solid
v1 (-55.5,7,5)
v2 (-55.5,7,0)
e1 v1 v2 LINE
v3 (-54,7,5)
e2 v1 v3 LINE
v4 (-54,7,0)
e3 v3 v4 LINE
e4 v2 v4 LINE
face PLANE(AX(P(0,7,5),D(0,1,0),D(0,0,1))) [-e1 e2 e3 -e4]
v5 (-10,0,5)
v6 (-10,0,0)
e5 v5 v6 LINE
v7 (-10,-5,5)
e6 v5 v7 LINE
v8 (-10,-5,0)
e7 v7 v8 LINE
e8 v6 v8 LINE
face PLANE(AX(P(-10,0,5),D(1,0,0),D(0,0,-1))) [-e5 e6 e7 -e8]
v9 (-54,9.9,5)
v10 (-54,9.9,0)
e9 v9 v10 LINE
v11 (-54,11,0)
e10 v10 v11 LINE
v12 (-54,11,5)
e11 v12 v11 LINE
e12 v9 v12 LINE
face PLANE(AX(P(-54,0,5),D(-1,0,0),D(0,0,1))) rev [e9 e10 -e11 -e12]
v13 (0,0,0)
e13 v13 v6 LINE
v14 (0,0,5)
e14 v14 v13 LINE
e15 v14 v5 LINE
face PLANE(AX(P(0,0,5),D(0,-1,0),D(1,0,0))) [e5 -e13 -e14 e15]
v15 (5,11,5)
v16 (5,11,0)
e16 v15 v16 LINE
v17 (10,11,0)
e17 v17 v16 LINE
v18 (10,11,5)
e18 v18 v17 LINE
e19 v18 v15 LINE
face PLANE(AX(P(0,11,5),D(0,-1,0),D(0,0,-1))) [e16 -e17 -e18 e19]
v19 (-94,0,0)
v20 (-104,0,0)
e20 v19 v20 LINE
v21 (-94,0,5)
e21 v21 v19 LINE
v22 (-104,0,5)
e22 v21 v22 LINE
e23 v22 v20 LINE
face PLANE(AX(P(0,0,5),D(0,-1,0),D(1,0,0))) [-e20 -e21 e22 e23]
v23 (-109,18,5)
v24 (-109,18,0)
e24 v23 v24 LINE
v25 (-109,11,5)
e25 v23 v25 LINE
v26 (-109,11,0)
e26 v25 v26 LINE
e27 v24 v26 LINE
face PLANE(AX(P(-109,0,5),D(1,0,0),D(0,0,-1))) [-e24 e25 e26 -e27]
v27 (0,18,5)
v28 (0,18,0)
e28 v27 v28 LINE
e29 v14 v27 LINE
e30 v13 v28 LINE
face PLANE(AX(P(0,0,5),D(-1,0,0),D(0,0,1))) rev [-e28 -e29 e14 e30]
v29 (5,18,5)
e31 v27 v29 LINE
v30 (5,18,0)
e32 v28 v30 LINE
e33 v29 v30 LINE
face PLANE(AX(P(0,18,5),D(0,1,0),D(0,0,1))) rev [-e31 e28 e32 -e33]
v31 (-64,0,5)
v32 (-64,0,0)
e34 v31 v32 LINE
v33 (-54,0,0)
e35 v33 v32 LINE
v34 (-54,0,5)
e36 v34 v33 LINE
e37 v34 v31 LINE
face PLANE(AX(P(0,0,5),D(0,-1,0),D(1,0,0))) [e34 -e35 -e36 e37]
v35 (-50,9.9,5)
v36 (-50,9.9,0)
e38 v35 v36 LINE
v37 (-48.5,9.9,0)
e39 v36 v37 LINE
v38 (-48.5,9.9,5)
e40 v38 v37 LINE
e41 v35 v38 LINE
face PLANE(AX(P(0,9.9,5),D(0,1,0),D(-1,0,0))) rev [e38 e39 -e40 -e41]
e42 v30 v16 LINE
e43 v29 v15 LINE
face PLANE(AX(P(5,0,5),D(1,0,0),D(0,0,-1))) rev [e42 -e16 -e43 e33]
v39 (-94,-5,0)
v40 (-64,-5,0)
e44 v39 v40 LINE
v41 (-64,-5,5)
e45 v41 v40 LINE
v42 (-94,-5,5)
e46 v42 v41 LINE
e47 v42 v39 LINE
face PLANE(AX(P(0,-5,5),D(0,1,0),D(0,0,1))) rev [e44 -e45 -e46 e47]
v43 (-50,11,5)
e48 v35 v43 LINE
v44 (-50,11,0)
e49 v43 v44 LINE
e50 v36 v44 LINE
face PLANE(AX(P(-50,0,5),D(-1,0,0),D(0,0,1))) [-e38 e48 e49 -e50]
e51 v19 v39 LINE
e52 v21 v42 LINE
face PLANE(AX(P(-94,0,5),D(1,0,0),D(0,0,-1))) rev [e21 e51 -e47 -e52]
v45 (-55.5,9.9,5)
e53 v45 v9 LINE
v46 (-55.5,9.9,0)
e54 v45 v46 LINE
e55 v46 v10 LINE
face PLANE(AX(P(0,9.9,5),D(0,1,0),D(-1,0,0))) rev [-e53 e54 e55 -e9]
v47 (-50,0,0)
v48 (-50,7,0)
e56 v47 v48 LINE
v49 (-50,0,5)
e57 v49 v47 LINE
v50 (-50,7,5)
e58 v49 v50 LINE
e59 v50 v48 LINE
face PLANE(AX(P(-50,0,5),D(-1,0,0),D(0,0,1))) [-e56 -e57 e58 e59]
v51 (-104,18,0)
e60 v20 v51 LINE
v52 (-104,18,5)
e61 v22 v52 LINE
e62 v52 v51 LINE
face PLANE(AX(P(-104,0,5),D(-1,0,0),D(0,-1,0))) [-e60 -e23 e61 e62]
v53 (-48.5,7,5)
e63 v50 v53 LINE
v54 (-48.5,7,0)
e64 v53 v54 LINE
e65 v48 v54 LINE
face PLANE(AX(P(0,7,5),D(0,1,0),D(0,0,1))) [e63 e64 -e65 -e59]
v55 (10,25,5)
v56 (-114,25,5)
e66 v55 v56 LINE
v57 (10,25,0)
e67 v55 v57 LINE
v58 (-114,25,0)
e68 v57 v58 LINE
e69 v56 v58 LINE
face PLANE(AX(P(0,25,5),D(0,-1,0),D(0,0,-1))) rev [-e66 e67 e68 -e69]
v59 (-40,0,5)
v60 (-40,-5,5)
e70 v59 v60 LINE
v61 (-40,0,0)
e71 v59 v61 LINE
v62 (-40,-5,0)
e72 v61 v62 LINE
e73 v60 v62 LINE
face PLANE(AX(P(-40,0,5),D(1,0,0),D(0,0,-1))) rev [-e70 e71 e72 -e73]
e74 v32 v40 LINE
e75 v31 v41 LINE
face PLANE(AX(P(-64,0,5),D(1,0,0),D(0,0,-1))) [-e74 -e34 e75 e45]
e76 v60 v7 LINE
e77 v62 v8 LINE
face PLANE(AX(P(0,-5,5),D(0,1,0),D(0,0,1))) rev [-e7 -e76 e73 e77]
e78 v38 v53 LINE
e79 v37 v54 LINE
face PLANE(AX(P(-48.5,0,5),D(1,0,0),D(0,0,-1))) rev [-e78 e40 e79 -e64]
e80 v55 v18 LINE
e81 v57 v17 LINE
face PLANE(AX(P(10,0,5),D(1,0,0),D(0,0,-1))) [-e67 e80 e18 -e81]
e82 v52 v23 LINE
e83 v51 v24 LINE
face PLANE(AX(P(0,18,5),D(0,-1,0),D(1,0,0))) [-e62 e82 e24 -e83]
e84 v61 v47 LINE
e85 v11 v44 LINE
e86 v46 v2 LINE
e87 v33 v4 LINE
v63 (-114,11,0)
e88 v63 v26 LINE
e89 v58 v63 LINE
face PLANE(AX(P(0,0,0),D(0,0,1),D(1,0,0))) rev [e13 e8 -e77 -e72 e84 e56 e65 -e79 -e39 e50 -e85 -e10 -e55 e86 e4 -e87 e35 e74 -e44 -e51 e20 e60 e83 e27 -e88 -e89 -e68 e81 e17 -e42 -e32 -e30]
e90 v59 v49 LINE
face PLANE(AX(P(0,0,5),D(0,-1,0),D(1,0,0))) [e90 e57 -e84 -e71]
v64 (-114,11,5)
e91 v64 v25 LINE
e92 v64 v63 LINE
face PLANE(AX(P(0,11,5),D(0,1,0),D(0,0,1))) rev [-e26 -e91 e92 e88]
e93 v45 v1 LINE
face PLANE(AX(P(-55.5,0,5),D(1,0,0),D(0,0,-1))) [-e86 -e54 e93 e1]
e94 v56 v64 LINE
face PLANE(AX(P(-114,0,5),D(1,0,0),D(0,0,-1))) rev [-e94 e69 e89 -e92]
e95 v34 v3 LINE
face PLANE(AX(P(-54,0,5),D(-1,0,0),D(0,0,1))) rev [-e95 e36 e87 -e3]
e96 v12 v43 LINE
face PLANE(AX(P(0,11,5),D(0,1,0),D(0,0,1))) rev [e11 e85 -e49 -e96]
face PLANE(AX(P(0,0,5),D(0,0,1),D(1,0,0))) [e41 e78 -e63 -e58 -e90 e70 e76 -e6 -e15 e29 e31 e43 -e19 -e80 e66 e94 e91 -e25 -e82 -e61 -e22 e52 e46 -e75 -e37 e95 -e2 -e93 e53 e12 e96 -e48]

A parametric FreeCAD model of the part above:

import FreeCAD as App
import Part
import Sketcher
Q = App.Units.Quantity


def add_polygon(sketch, points):
    """Adds a closed chain of lines whose ends are joined by coincident constraints."""
    first, n = sketch.GeometryCount, len(points)
    for a, b in zip(points, points[1:] + points[:1]):
        sketch.addGeometry(Part.LineSegment(App.Vector(*a, 0), App.Vector(*b, 0)), False)
    for i in range(n):
        sketch.addConstraint(Sketcher.Constraint("Coincident", first + i, 2, first + (i + 1) % n, 1))

doc = App.newDocument("Part")
body = doc.addObject("PartDesign::Body", "Body")

sketch1 = body.newObject("Sketcher::SketchObject", "Sketch")
sketch1.AttachmentSupport = (doc.getObject("XY_Plane"), [""])
sketch1.MapMode = "FlatFace"
add_polygon(sketch1, [(-109, 18), (-104, 18), (-104, 0), (-94, 0), (-94, -5), (-64, -5), (-64, 0), (-54, 0), (-54, 7), (-55.5, 7), (-55.5, 9.9), (-54, 9.9), (-54, 11), (-50, 11), (-50, 9.9), (-48.5, 9.9), (-48.5, 7), (-50, 7), (-50, 0), (-40, 0), (-40, -5), (-10, -5), (-10, 0), (0, 0), (0, 18), (5, 18), (5, 11), (10, 11), (10, 25), (-114, 25), (-114, 11), (-109, 11)])
sketch1.addConstraint(Sketcher.Constraint("Horizontal", 0))
sketch1.addConstraint(Sketcher.Constraint("Vertical", 1))
sketch1.addConstraint(Sketcher.Constraint("Horizontal", 2))
sketch1.addConstraint(Sketcher.Constraint("Vertical", 3))
sketch1.addConstraint(Sketcher.Constraint("Horizontal", 4))
sketch1.addConstraint(Sketcher.Constraint("Vertical", 5))
sketch1.addConstraint(Sketcher.Constraint("Horizontal", 6))
sketch1.addConstraint(Sketcher.Constraint("Vertical", 7))
sketch1.addConstraint(Sketcher.Constraint("Horizontal", 8))
sketch1.addConstraint(Sketcher.Constraint("Vertical", 9))
sketch1.addConstraint(Sketcher.Constraint("Horizontal", 10))
sketch1.addConstraint(Sketcher.Constraint("Vertical", 11))
sketch1.addConstraint(Sketcher.Constraint("Horizontal", 12))
sketch1.addConstraint(Sketcher.Constraint("Vertical", 13))
sketch1.addConstraint(Sketcher.Constraint("Horizontal", 14))
sketch1.addConstraint(Sketcher.Constraint("Vertical", 15))
sketch1.addConstraint(Sketcher.Constraint("Horizontal", 16))
sketch1.addConstraint(Sketcher.Constraint("Vertical", 17))
sketch1.addConstraint(Sketcher.Constraint("Horizontal", 18))
sketch1.addConstraint(Sketcher.Constraint("Vertical", 19))
sketch1.addConstraint(Sketcher.Constraint("Horizontal", 20))
sketch1.addConstraint(Sketcher.Constraint("Vertical", 21))
sketch1.addConstraint(Sketcher.Constraint("Horizontal", 22))
sketch1.addConstraint(Sketcher.Constraint("Vertical", 23))
sketch1.addConstraint(Sketcher.Constraint("Horizontal", 24))
sketch1.addConstraint(Sketcher.Constraint("Vertical", 25))
sketch1.addConstraint(Sketcher.Constraint("Horizontal", 26))
sketch1.addConstraint(Sketcher.Constraint("Vertical", 27))
sketch1.addConstraint(Sketcher.Constraint("Horizontal", 28))
sketch1.addConstraint(Sketcher.Constraint("Vertical", 29))
sketch1.addConstraint(Sketcher.Constraint("Horizontal", 30))
sketch1.addConstraint(Sketcher.Constraint("Vertical", 31))
sketch1.addConstraint(Sketcher.Constraint("Coincident", 22, 2, -1, 1))
sketch1.addConstraint(Sketcher.Constraint("PointOnObject", 1, 2, -1))
sketch1.addConstraint(Sketcher.Constraint("PointOnObject", 5, 2, -1))
sketch1.addConstraint(Sketcher.Constraint("PointOnObject", 17, 2, -1))
sketch1.addConstraint(Sketcher.Constraint("Horizontal", 10, 2, 13, 2))
sketch1.addConstraint(Sketcher.Constraint("Horizontal", 8, 2, 15, 2))
sketch1.addConstraint(Sketcher.Constraint("Horizontal", 4, 2, 19, 2))
sketch1.addConstraint(Sketcher.Constraint("Horizontal", 0, 2, 23, 2))
sketch1.addConstraint(Sketcher.Constraint("Horizontal", 12, 2, 25, 2))
sketch1.addConstraint(Sketcher.Constraint("Horizontal", 26, 2, 29, 2))
sketch1.addConstraint(Sketcher.Constraint("Vertical", 7, 2, 10, 2))
sketch1.addConstraint(Sketcher.Constraint("Vertical", 13, 2, 16, 2))
sketch1.addConstraint(Sketcher.Constraint("Equal", 2, 6))
sketch1.addConstraint(Sketcher.Constraint("Equal", 10, 14))
sketch1.addConstraint(Sketcher.Constraint("Equal", 6, 18))
sketch1.addConstraint(Sketcher.Constraint("Equal", 4, 20))
sketch1.addConstraint(Sketcher.Constraint("Equal", 18, 22))
sketch1.addConstraint(Sketcher.Constraint("Equal", 0, 24))
sketch1.addConstraint(Sketcher.Constraint("Equal", 24, 26))
sketch1.addConstraint(Sketcher.Constraint("Equal", 26, 30))
sketch1.addConstraint(Sketcher.Constraint("Equal", 30, 3))
sketch1.addConstraint(Sketcher.Constraint("Equal", 17, 25))
sketch1.addConstraint(Sketcher.Constraint("DistanceX", 0, 1, 0, 2, Q("5 mm")))
sketch1.addConstraint(Sketcher.Constraint("DistanceX", 2, 1, 2, 2, Q("10 mm")))
sketch1.addConstraint(Sketcher.Constraint("DistanceX", 4, 1, 4, 2, Q("30 mm")))
sketch1.addConstraint(Sketcher.Constraint("DistanceX", 12, 1, 12, 2, Q("4 mm")))
sketch1.addConstraint(Sketcher.Constraint("DistanceY", 1, 2, 1, 1, Q("18 mm")))
sketch1.addConstraint(Sketcher.Constraint("DistanceY", 7, 1, 7, 2, Q("7 mm")))
sketch1.addConstraint(Sketcher.Constraint("DistanceY", 27, 1, 27, 2, Q("14 mm")))
sketch1.addConstraint(Sketcher.Constraint("DistanceX", 8, 2, 8, 1, Q("1.5 mm")))
sketch1.addConstraint(Sketcher.Constraint("DistanceY", 9, 1, 9, 2, Q("2.9 mm")))
pad1 = body.newObject("PartDesign::Pad", "Pad")
pad1.Profile = sketch1
pad1.Length = 5

doc.recompute()
